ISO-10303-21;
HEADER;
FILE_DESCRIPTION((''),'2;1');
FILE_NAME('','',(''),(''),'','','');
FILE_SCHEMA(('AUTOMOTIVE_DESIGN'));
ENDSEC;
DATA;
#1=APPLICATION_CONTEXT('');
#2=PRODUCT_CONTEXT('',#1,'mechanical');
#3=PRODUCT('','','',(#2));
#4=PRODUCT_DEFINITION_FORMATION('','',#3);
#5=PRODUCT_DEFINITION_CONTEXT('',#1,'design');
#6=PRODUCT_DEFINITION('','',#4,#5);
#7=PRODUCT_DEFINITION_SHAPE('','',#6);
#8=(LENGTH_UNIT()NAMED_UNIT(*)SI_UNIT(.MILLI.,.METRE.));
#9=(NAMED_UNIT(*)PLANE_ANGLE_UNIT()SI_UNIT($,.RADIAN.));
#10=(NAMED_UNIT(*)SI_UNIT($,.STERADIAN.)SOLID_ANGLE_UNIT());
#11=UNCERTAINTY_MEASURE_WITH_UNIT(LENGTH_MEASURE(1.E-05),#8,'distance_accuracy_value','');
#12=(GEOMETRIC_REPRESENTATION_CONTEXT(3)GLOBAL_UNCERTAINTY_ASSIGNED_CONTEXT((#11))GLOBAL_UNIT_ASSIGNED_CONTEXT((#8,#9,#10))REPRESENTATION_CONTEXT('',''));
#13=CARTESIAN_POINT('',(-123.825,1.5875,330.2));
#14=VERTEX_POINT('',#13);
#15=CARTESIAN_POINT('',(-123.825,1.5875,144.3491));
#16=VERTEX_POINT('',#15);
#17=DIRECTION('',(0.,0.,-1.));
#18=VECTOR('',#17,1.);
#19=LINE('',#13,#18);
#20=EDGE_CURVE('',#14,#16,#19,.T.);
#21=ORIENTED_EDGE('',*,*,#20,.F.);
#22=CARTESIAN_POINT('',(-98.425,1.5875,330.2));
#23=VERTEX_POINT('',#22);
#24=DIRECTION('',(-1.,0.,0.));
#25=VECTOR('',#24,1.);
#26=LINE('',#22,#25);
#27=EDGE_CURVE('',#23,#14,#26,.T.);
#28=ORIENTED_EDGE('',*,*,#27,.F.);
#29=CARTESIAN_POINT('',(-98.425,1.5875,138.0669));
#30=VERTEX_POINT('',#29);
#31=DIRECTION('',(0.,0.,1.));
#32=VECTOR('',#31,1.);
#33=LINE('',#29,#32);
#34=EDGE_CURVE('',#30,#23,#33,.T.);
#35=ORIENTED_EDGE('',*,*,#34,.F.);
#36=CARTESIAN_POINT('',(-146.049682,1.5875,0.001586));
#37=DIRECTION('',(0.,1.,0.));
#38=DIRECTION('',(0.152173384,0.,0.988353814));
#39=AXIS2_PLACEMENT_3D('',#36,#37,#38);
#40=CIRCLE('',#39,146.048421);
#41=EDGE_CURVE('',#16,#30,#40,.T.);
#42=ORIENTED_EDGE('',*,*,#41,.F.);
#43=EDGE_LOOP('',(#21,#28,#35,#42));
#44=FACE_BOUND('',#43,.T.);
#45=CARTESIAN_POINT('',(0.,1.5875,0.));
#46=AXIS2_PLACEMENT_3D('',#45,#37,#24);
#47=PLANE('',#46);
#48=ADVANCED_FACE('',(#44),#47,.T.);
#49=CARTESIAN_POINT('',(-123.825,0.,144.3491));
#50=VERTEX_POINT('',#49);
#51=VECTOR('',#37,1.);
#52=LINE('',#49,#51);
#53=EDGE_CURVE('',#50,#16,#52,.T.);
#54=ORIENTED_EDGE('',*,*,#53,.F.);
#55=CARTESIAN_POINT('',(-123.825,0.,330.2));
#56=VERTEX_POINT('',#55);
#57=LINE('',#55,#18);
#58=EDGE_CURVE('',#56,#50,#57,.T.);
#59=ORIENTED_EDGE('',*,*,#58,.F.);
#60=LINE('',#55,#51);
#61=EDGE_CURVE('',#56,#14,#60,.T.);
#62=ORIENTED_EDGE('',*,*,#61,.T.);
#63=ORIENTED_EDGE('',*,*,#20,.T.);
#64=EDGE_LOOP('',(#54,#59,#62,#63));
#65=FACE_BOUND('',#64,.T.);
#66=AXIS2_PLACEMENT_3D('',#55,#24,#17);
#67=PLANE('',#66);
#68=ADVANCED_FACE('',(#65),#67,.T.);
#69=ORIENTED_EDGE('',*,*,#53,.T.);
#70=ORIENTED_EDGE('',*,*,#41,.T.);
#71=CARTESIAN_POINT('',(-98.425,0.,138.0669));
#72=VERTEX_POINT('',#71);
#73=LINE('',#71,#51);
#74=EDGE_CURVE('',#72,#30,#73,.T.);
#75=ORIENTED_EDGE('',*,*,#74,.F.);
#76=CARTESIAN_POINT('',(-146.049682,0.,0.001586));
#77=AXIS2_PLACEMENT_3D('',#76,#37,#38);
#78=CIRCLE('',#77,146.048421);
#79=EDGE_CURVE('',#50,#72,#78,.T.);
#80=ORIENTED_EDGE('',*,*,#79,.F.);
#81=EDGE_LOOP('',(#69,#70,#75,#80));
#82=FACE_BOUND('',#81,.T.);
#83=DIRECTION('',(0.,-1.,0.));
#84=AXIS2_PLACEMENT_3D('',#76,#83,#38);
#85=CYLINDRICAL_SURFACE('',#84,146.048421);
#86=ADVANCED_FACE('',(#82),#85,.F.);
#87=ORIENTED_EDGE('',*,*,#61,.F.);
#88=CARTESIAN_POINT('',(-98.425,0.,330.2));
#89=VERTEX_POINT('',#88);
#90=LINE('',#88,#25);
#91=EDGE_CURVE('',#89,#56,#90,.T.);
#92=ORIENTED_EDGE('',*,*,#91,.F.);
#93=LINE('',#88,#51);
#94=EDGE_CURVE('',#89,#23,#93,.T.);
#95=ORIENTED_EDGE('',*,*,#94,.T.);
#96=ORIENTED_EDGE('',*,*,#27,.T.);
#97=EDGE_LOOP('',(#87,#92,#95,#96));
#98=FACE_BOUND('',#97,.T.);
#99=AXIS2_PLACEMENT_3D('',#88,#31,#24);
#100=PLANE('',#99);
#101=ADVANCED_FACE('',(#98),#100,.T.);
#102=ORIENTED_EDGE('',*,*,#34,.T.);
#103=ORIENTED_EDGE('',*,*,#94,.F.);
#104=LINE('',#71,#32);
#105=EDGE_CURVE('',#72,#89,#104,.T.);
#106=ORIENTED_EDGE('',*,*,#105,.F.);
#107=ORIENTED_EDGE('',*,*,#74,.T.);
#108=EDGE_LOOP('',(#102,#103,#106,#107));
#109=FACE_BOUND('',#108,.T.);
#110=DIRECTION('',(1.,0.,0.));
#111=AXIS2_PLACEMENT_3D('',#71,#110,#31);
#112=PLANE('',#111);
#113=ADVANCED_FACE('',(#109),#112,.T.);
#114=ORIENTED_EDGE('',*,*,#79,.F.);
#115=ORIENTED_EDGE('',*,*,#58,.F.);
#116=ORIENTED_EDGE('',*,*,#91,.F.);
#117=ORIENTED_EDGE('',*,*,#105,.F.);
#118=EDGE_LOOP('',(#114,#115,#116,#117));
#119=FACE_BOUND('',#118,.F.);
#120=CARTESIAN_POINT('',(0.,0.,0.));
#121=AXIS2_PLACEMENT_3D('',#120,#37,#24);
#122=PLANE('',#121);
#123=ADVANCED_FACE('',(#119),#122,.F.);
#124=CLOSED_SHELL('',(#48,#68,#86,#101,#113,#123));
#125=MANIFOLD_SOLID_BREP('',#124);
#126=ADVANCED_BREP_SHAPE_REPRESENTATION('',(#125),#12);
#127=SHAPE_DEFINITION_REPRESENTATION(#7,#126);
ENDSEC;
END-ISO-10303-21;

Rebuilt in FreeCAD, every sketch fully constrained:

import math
import FreeCAD as App
import Part
import Sketcher

V = App.Vector
Q = App.Units.Quantity

doc = App.newDocument("Part")
params = doc.addObject("Spreadsheet::Sheet", "Params")
for row, (alias, value) in enumerate([
    ("sketch1_width", "1 in"),
    ("pad1_length", "0.0625 in"),
], start=1):
    params.set(f"A{row}", alias)
    params.set(f"B{row}", "=" + value)
    params.setAlias(f"B{row}", alias)

body = doc.addObject("PartDesign::Body", "Body")

# Sketch on XZ plane
sketch1 = body.newObject("Sketcher::SketchObject", "Sketch")
sketch1.AttachmentSupport = (doc.getObject("XZ_Plane"), [""])
sketch1.MapMode = "FlatFace"
sketch1.addGeometry([
    Part.LineSegment(V(-98, 330, 0), V(-98, 138, 0)),
    Part.ArcOfCircle(Part.Circle(V(-146, 0, 0), V(0, 0, 1), 146), math.radians(70.97), math.radians(81.25)),
    Part.LineSegment(V(-124, 144, 0), V(-124, 330, 0)),
    Part.LineSegment(V(-124, 330, 0), V(-98, 330, 0)),
], False)
sketch1.addConstraint([
    Sketcher.Constraint("Coincident", 0, 2, 1, 1),
    Sketcher.Constraint("Coincident", 1, 2, 2, 1),
    Sketcher.Constraint("Coincident", 2, 2, 3, 1),
    Sketcher.Constraint("Coincident", 3, 2, 0, 1),
    Sketcher.Constraint("Vertical", 0),
    Sketcher.Constraint("Vertical", 2),
    Sketcher.Constraint("Horizontal", 3),
    Sketcher.Constraint("DistanceX", 3, 1, 3, 2, Q("1 in")),
    Sketcher.Constraint("DistanceY", -1, 1, 2, 2, Q("13 in")),
    Sketcher.Constraint("DistanceX", 0, 2, -1, 1, Q("3.875 in")),
    Sketcher.Constraint("Radius", 1, Q("146.0484 mm")),
    Sketcher.Constraint("DistanceY", 0, 2, 0, 1, Q("7.5643 in")),
    Sketcher.Constraint("DistanceY", 2, 1, 2, 2, Q("185.851 mm")),
])
sketch1.setExpression("Constraints[7]", "Params.sketch1_width")
pad1 = body.newObject("PartDesign::Pad", "Pad")
pad1.Profile = sketch1
pad1.setExpression("Length", "Params.pad1_length")
pad1.Reversed = True

doc.recompute()
